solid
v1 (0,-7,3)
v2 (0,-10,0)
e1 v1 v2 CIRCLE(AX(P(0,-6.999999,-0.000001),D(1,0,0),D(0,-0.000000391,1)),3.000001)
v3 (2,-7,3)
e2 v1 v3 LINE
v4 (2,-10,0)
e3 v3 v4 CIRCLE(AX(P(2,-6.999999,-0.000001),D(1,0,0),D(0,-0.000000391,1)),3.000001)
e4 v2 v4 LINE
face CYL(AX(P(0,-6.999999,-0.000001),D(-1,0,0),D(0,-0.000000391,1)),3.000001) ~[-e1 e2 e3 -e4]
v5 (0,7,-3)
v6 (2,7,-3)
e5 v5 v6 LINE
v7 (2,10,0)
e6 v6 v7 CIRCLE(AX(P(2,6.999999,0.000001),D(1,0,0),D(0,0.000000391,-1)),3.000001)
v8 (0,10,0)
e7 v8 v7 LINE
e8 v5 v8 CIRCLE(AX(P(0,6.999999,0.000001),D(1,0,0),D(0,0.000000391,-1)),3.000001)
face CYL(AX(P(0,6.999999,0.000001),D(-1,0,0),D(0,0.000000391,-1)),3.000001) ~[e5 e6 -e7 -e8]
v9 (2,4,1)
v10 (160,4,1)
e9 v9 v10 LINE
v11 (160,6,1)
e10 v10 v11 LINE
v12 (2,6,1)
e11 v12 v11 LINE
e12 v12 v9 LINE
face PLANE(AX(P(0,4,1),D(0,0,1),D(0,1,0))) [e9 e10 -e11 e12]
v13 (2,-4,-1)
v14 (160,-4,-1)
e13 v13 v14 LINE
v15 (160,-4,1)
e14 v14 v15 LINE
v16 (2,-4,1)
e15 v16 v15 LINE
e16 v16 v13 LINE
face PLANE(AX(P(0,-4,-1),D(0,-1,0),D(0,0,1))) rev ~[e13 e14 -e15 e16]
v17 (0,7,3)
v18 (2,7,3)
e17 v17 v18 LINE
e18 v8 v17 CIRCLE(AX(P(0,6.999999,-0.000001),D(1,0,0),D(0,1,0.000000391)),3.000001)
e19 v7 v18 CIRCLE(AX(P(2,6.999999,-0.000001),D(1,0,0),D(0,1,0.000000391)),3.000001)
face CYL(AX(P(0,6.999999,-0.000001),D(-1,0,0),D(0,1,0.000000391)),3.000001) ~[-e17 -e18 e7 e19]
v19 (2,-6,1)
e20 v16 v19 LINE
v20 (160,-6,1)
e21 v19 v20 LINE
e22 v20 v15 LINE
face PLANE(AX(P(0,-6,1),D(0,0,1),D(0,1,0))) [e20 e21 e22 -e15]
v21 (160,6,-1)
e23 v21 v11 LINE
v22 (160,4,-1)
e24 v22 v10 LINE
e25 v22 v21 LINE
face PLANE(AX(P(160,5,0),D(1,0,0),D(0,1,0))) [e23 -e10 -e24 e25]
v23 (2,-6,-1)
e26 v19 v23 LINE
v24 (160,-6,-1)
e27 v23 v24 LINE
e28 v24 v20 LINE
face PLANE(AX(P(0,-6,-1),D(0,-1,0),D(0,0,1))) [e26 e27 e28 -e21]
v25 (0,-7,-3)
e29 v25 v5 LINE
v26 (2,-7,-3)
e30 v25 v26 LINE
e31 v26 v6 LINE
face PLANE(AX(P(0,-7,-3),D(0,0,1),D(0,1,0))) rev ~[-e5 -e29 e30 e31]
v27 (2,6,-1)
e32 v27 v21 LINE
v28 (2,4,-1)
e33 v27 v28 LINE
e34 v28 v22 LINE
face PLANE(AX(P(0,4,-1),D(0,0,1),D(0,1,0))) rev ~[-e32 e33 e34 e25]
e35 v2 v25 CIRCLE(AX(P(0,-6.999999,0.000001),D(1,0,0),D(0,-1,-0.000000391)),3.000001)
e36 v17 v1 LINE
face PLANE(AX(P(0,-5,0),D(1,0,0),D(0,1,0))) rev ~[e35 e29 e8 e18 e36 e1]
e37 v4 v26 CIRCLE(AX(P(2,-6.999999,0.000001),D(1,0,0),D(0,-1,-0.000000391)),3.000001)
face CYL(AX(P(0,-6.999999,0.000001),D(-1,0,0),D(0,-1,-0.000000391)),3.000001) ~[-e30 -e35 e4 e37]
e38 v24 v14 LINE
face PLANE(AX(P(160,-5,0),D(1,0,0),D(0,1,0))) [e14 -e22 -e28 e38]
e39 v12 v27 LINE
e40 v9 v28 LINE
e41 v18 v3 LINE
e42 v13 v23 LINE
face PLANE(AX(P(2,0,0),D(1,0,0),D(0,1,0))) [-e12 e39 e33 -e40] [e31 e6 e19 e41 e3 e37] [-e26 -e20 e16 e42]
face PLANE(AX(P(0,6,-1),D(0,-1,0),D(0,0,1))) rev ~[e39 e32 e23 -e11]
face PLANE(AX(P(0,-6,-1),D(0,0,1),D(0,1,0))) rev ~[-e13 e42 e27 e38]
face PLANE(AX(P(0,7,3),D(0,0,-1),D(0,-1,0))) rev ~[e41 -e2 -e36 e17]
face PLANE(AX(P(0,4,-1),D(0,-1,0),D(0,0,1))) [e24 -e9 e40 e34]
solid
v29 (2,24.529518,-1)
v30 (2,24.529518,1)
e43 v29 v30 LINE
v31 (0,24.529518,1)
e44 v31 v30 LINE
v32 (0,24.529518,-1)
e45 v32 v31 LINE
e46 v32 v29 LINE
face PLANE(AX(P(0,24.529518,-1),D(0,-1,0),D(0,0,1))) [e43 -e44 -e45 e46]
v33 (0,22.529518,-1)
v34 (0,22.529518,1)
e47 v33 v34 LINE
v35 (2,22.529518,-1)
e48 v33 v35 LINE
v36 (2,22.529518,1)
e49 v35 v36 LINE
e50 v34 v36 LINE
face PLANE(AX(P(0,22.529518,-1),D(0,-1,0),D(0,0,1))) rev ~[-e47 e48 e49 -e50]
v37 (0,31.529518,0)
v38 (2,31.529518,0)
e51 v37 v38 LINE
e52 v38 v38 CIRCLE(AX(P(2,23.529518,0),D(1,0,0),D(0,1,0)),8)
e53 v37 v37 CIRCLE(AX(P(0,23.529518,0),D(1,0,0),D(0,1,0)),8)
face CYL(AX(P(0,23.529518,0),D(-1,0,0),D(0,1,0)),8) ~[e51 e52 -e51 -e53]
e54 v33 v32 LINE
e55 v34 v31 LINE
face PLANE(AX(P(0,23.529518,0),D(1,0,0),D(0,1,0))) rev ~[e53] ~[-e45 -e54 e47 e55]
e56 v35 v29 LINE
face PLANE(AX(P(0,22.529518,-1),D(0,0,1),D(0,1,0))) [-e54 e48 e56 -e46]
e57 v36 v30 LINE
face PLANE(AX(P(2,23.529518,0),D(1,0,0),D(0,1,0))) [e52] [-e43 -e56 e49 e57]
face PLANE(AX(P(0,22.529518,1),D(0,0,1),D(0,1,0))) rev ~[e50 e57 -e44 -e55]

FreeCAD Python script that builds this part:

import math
import FreeCAD as App
import Part
import Sketcher

V = App.Vector


def add_polygon(sketch, points):
    """Adds a closed chain of lines whose ends are joined by coincident constraints."""
    first, n = sketch.GeometryCount, len(points)
    for a, b in zip(points, points[1:] + points[:1]):
        sketch.addGeometry(Part.LineSegment(App.Vector(*a, 0), App.Vector(*b, 0)), False)
    for i in range(n):
        sketch.addConstraint(Sketcher.Constraint("Coincident", first + i, 2, first + (i + 1) % n, 1))

doc = App.newDocument("Part")
params = doc.addObject("Spreadsheet::Sheet", "Params")
for row, (alias, value) in enumerate([
    ("sketch1_radius", "3.000001 mm"),
    ("sketch1_width", "14 mm"),
    ("pad1_length", "2 mm"),
    ("sketch2_width", "2 mm"),
    ("pad2_length", "160 mm"),
    ("sketch3_diameter", "16 mm"),
    ("sketch3_width", "2 mm"),
    ("pad3_length", "2 mm"),
], start=1):
    params.set(f"A{row}", alias)
    params.set(f"B{row}", "=" + value)
    params.setAlias(f"B{row}", alias)

body = doc.addObject("PartDesign::Body", "Body")

sketch1 = doc.addObject("Sketcher::SketchObject", "Sketch")
body.addObject(sketch1)
sketch1.AttachmentSupport = (doc.YZ_Plane, [""])
sketch1.MapMode = "FlatFace"
sketch1.addGeometry(Part.ArcOfCircle(Part.Circle(V(6.999999, -0.000001, 0), V(0, 0, 1), 3.000001), math.radians(0.000022), math.radians(89.999978)), False)
sketch1.addGeometry(Part.LineSegment(V(7, 3, 0), V(-7, 3, 0)), False)
sketch1.addGeometry(Part.ArcOfCircle(Part.Circle(V(-6.999999, -0.000001, 0), V(0, 0, 1), 3.000001), math.radians(90.000022), math.radians(179.999978)), False)
sketch1.addGeometry(Part.ArcOfCircle(Part.Circle(V(-6.999999, 0.000001, 0), V(0, 0, 1), 3.000001), math.radians(-179.999978), math.radians(-90.000022)), False)
sketch1.addGeometry(Part.LineSegment(V(-7, -3, 0), V(7, -3, 0)), False)
sketch1.addGeometry(Part.ArcOfCircle(Part.Circle(V(6.999999, 0.000001, 0), V(0, 0, 1), 3.000001), math.radians(-89.999978), math.radians(-0.000022)), False)
sketch1.addConstraint(Sketcher.Constraint("Tangent", 0, 2, 1, 1))
sketch1.addConstraint(Sketcher.Constraint("Tangent", 1, 2, 2, 1))
sketch1.addConstraint(Sketcher.Constraint("Tangent", 2, 2, 3, 1))
sketch1.addConstraint(Sketcher.Constraint("Tangent", 3, 2, 4, 1))
sketch1.addConstraint(Sketcher.Constraint("Tangent", 4, 2, 5, 1))
sketch1.addConstraint(Sketcher.Constraint("Tangent", 5, 2, 0, 1))
sketch1.addConstraint(Sketcher.Constraint("Horizontal", 1))
sketch1.addConstraint(Sketcher.Constraint("Horizontal", 4))
sketch1.addConstraint(Sketcher.Constraint("Equal", 0, 2))
sketch1.addConstraint(Sketcher.Constraint("Equal", 2, 3))
sketch1.addConstraint(Sketcher.Constraint("Symmetric", 0, 3, 2, 3, -1, 1))
sketch1.addConstraint(Sketcher.Constraint("PointOnObject", 2, 2, -1))
sketch1.addConstraint(Sketcher.Constraint("PointOnObject", 5, 2, -1))
sketch1.addConstraint(Sketcher.Constraint("Radius", 0, 3.000001))
sketch1.addConstraint(Sketcher.Constraint("DistanceX", 1, 2, 1, 1, 14.0))
sketch1.setExpression("Constraints[13]", "Params.sketch1_radius")
sketch1.setExpression("Constraints[14]", "Params.sketch1_width")
pad1 = doc.addObject("PartDesign::Pad", "Pad")
body.addObject(pad1)
pad1.Profile = sketch1
pad1.setExpression("Length", "Params.pad1_length")

sketch2 = doc.addObject("Sketcher::SketchObject", "Sketch001")
body.addObject(sketch2)
sketch2.AttachmentSupport = (doc.YZ_Plane, [""])
sketch2.MapMode = "FlatFace"
add_polygon(sketch2, [(-6, 1), (-6, -1), (-4, -1), (-4, 1)])
add_polygon(sketch2, [(4, 1), (4, -1), (6, -1), (6, 1)])
sketch2.addConstraint(Sketcher.Constraint("Vertical", 0))
sketch2.addConstraint(Sketcher.Constraint("Horizontal", 1))
sketch2.addConstraint(Sketcher.Constraint("Vertical", 2))
sketch2.addConstraint(Sketcher.Constraint("Horizontal", 3))
sketch2.addConstraint(Sketcher.Constraint("Vertical", 4))
sketch2.addConstraint(Sketcher.Constraint("Horizontal", 5))
sketch2.addConstraint(Sketcher.Constraint("Vertical", 6))
sketch2.addConstraint(Sketcher.Constraint("Horizontal", 7))
sketch2.addConstraint(Sketcher.Constraint("Symmetric", 2, 2, 4, 2, -1, 1))
sketch2.addConstraint(Sketcher.Constraint("Symmetric", 0, 2, 6, 2, -1, 1))
sketch2.addConstraint(Sketcher.Constraint("Horizontal", 1, 2, 4, 2))
sketch2.addConstraint(Sketcher.Constraint("Equal", 7, 0))
sketch2.addConstraint(Sketcher.Constraint("DistanceX", 1, 1, 1, 2, 2.0))
sketch2.addConstraint(Sketcher.Constraint("DistanceX", 0, 2, -1, 1, 6.0))
sketch2.setExpression("Constraints[20]", "Params.sketch2_width")
pad2 = doc.addObject("PartDesign::Pad", "Pad001")
body.addObject(pad2)
pad2.Profile = sketch2
pad2.setExpression("Length", "Params.pad2_length")
body2 = doc.addObject("PartDesign::Body", "Body001")

sketch3 = doc.addObject("Sketcher::SketchObject", "Sketch002")
body2.addObject(sketch3)
sketch3.AttachmentSupport = (doc.getObject("YZ_Plane001"), [""])
sketch3.MapMode = "FlatFace"
sketch3.addGeometry(Part.Circle(V(23.529518, 0, 0), V(0, 0, 1), 8), False)
add_polygon(sketch3, [(24.529518, -1), (22.529518, -1), (22.529518, 1), (24.529518, 1)])
sketch3.addConstraint(Sketcher.Constraint("Horizontal", 1))
sketch3.addConstraint(Sketcher.Constraint("Vertical", 2))
sketch3.addConstraint(Sketcher.Constraint("Horizontal", 3))
sketch3.addConstraint(Sketcher.Constraint("Vertical", 4))
sketch3.addConstraint(Sketcher.Constraint("PointOnObject", 0, 3, -1))
sketch3.addConstraint(Sketcher.Constraint("Equal", 3, 2))
sketch3.addConstraint(Sketcher.Constraint("Diameter", 0, 16.0))
sketch3.addConstraint(Sketcher.Constraint("DistanceX", 1, 2, 1, 1, 2.0))
sketch3.addConstraint(Sketcher.Constraint("DistanceY", 1, 2, -1, 1, 1.0))
sketch3.addConstraint(Sketcher.Constraint("DistanceX", 1, 2, 0, 3, 1.0))
sketch3.addConstraint(Sketcher.Constraint("DistanceX", -1, 1, 0, 3, 23.529518))
sketch3.setExpression("Constraints[10]", "Params.sketch3_diameter")
sketch3.setExpression("Constraints[11]", "Params.sketch3_width")
pad3 = doc.addObject("PartDesign::Pad", "Pad002")
body2.addObject(pad3)
pad3.Profile = sketch3
pad3.setExpression("Length", "Params.pad3_length")

doc.recompute()
